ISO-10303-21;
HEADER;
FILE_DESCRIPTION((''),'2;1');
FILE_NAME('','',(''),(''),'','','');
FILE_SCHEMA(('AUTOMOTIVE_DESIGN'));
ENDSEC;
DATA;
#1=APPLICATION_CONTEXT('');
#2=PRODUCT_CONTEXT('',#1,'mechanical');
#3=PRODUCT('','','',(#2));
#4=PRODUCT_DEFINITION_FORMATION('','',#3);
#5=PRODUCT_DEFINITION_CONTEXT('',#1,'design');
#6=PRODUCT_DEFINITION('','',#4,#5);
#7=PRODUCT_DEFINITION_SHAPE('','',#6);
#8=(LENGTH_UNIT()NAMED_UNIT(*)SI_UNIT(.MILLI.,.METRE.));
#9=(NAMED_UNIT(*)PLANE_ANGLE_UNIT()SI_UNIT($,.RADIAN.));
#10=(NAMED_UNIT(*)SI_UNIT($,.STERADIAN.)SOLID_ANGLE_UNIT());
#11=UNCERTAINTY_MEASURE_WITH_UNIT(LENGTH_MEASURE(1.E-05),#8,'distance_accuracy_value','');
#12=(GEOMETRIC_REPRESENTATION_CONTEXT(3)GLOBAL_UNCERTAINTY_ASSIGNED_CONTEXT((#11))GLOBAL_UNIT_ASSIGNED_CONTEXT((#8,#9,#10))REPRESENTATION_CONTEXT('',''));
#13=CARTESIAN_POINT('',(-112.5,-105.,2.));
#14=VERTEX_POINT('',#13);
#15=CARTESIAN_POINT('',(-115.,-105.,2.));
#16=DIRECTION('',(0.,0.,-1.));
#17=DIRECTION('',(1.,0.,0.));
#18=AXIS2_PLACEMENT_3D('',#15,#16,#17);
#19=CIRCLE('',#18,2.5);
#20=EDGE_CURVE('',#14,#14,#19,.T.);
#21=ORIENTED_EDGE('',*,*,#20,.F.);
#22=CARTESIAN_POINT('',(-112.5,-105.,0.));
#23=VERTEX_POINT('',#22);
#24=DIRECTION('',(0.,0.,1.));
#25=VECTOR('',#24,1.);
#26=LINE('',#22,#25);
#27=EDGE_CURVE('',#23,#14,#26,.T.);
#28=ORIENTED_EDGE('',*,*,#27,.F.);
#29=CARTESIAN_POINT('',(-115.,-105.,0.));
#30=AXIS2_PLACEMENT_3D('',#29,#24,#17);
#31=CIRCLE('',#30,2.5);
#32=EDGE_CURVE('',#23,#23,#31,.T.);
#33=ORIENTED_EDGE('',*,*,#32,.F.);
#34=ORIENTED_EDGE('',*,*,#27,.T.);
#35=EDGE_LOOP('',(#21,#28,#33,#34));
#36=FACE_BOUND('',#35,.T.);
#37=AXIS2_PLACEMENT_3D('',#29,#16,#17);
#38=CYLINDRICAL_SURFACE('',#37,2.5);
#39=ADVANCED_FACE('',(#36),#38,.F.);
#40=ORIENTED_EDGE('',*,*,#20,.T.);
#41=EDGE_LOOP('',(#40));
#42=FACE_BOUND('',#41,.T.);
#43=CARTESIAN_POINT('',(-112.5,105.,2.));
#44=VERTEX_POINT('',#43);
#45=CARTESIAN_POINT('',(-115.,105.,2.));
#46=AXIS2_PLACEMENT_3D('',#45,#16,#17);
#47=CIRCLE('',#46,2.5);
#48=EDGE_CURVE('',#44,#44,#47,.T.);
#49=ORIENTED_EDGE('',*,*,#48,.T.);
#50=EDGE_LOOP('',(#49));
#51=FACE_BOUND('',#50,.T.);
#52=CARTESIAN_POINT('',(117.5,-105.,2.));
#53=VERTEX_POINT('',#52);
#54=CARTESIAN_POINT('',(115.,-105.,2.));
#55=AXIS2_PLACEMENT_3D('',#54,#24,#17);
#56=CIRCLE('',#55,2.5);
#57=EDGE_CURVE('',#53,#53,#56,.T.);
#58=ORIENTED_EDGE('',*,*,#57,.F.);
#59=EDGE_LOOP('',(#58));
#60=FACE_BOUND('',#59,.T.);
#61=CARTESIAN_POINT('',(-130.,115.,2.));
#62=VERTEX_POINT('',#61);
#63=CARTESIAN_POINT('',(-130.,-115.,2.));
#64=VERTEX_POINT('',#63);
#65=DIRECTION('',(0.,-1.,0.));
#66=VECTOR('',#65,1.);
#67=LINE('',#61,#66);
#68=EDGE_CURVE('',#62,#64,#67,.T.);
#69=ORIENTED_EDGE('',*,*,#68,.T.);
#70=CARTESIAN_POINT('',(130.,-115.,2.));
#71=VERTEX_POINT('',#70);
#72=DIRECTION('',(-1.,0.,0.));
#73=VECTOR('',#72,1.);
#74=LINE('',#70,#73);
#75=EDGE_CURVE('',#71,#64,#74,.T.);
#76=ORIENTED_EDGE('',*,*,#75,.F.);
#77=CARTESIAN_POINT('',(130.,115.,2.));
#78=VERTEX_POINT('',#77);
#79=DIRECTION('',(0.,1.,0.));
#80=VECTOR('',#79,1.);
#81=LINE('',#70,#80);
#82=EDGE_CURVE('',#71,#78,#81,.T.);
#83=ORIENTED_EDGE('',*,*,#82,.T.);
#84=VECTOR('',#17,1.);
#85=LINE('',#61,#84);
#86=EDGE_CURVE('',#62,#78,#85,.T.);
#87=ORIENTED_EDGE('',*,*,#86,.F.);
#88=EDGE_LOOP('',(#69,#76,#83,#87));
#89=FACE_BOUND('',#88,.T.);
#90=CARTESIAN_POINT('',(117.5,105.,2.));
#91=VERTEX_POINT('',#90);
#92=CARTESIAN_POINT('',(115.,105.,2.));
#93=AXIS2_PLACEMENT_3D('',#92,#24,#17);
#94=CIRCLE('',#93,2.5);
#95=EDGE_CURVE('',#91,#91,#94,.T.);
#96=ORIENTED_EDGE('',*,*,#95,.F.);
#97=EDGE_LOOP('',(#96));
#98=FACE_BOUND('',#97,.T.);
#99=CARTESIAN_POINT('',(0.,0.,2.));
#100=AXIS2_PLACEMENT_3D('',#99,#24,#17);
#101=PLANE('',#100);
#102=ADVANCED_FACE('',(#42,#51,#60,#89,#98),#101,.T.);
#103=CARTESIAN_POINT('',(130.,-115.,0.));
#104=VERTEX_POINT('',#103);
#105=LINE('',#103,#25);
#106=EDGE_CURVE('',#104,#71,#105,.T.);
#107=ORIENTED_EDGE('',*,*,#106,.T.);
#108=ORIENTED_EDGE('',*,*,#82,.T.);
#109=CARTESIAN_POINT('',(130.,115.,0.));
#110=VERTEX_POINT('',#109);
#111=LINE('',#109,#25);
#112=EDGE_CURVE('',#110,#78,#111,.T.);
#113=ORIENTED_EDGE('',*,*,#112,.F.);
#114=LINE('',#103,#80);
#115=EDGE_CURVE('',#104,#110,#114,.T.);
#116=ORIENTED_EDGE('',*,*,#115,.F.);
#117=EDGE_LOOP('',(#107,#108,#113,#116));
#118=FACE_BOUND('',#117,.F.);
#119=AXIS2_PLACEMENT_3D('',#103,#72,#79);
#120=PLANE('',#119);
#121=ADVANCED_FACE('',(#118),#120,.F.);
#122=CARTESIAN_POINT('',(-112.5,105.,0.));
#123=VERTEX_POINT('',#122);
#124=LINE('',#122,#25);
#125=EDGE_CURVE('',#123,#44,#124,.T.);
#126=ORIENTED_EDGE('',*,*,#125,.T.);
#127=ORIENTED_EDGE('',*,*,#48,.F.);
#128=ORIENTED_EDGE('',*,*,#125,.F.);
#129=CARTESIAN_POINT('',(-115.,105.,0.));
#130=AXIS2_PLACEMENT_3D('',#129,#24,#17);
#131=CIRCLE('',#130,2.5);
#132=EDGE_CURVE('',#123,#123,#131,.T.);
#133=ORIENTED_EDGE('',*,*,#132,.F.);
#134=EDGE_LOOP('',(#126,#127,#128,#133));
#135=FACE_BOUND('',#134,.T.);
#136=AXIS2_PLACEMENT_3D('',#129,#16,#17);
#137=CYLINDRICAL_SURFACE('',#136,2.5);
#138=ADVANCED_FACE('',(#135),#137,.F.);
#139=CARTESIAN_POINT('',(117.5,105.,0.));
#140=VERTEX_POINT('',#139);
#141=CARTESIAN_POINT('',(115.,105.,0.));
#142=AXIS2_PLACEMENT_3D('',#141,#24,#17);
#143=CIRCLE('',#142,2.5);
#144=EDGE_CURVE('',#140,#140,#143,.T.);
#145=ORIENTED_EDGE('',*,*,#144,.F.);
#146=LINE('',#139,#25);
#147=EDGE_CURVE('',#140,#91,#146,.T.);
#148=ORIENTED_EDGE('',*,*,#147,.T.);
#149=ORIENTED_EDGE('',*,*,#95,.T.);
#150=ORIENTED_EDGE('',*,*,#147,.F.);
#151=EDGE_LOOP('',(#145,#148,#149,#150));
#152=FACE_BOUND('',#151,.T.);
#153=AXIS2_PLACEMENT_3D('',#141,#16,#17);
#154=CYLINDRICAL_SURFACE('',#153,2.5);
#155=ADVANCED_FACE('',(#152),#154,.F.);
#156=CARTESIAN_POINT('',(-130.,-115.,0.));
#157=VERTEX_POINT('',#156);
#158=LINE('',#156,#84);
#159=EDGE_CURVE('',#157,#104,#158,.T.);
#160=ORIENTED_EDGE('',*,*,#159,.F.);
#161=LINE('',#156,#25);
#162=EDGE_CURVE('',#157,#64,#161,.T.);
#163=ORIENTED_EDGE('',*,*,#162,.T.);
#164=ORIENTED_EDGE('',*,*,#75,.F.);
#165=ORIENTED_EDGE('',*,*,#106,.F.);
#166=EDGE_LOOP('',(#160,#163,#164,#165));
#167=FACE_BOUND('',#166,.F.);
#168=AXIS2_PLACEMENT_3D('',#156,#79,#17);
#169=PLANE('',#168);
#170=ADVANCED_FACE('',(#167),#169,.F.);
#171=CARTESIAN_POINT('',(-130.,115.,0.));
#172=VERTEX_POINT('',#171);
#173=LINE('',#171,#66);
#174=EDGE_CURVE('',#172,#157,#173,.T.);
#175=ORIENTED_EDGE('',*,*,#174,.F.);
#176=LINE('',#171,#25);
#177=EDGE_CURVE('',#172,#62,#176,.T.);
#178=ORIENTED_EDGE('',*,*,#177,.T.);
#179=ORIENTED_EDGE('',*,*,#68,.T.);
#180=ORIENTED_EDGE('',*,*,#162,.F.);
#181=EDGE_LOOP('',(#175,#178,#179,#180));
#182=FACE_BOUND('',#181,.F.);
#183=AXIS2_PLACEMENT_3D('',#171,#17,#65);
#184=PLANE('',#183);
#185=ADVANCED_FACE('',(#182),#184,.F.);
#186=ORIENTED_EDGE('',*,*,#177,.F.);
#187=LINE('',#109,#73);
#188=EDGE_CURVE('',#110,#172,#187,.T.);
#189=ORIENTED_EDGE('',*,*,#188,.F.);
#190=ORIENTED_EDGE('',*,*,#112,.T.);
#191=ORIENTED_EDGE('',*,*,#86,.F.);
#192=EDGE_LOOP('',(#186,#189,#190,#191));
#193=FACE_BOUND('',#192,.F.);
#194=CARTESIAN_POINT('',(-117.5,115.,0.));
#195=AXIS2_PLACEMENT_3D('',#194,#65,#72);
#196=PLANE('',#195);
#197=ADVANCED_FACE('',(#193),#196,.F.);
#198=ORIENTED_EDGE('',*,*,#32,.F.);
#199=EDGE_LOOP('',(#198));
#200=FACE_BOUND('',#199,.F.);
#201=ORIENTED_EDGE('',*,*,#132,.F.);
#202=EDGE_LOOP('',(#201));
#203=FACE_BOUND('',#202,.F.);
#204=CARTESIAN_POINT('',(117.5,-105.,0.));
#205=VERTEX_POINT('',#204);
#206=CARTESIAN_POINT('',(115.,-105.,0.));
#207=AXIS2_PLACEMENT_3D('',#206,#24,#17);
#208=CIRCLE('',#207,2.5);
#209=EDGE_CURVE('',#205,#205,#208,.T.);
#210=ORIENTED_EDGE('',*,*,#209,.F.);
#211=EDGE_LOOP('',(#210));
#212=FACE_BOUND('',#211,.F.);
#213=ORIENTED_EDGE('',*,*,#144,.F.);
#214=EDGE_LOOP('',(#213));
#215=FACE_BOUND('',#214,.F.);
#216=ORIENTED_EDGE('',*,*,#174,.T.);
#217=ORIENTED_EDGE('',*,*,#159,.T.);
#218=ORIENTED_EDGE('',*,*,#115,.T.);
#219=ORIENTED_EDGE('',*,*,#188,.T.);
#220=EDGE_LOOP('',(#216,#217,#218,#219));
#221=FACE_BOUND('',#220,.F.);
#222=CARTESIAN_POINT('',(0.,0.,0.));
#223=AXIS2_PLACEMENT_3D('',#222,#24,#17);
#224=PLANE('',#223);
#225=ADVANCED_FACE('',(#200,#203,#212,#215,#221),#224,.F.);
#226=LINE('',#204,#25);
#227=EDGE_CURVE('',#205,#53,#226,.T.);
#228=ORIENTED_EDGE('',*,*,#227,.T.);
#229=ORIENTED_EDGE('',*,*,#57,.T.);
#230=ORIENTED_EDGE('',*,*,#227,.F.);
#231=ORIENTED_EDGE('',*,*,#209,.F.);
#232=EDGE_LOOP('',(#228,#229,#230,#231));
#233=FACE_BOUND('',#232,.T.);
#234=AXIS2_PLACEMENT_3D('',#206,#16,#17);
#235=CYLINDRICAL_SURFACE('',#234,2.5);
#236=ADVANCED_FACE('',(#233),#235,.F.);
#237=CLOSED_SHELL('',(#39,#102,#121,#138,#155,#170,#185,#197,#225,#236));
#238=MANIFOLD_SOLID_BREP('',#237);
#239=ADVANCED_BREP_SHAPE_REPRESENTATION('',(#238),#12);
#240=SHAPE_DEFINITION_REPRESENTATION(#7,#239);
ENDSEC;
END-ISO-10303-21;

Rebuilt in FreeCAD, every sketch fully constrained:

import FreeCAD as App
import Part
import Sketcher

doc = App.newDocument("Part")
body = doc.addObject("PartDesign::Body", "Body")

sketch1 = body.newObject("Sketcher::SketchObject", "Sketch")
sketch1.AttachmentSupport = (doc.getObject("XY_Plane"), [""])
sketch1.MapMode = "FlatFace"
sketch1.addGeometry([
    Part.LineSegment(App.Vector(-130, 115, 0), App.Vector(-130, -115, 0)),
    Part.LineSegment(App.Vector(-130, -115, 0), App.Vector(130, -115, 0)),
    Part.LineSegment(App.Vector(130, -115, 0), App.Vector(130, 115, 0)),
    Part.LineSegment(App.Vector(130, 115, 0), App.Vector(-130, 115, 0)),
    Part.Circle(App.Vector(-115, 105, 0), App.Vector(0, 0, 1), 2.5),
    Part.Circle(App.Vector(115, 105, 0), App.Vector(0, 0, 1), 2.5),
    Part.Circle(App.Vector(-115, -105, 0), App.Vector(0, 0, 1), 2.5),
    Part.Circle(App.Vector(115, -105, 0), App.Vector(0, 0, 1), 2.5),
], False)
sketch1.addConstraint([
    Sketcher.Constraint("Coincident", 0, 2, 1, 1),
    Sketcher.Constraint("Coincident", 1, 2, 2, 1),
    Sketcher.Constraint("Coincident", 2, 2, 3, 1),
    Sketcher.Constraint("Coincident", 3, 2, 0, 1),
    Sketcher.Constraint("Vertical", 0),
    Sketcher.Constraint("Horizontal", 1),
    Sketcher.Constraint("Vertical", 2),
    Sketcher.Constraint("Horizontal", 3),
    Sketcher.Constraint("Equal", 4, 5),
    Sketcher.Constraint("Equal", 5, 6),
    Sketcher.Constraint("Equal", 6, 7),
    Sketcher.Constraint("Symmetric", 5, 3, 6, 3, -1, 1),
    Sketcher.Constraint("Symmetric", 4, 3, 7, 3, -1, 1),
    Sketcher.Constraint("Symmetric", 0, 2, 2, 2, -1, 1),
    Sketcher.Constraint("Symmetric", 4, 3, 5, 3, -2),
    Sketcher.Constraint("Diameter", 4, 5.0),
    Sketcher.Constraint("DistanceX", 1, 1, 1, 2, 260.0),
    Sketcher.Constraint("DistanceY", 0, 2, 0, 1, 230.0),
    Sketcher.Constraint("DistanceX", 4, 3, 5, 3, 230.0),
    Sketcher.Constraint("DistanceY", 0, 2, 6, 3, 10.0),
])
pad1 = body.newObject("PartDesign::Pad", "Pad")
pad1.Profile = sketch1
pad1.Length = 2

doc.recompute()
